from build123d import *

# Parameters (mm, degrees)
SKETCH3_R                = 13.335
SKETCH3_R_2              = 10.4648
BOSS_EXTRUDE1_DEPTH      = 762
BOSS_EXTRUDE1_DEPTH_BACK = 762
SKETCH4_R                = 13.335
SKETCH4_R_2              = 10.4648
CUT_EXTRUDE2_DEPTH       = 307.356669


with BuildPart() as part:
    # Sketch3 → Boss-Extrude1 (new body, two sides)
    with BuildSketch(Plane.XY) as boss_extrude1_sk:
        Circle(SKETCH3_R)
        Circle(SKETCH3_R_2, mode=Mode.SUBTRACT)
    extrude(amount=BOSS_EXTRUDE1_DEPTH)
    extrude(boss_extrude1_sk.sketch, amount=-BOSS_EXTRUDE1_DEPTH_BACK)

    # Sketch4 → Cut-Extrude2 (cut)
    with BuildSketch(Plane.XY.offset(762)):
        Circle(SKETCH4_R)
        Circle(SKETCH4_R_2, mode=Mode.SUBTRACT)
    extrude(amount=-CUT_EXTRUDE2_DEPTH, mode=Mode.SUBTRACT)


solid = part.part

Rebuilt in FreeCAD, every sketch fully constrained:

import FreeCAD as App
import Part
import Sketcher

V = App.Vector
Q = App.Units.Quantity

doc = App.newDocument("Part")
body = doc.addObject("PartDesign::Body", "Body")

# Sketch on XY plane
sketch1 = doc.addObject("Sketcher::SketchObject", "Sketch")
body.addObject(sketch1)
sketch1.AttachmentSupport = (doc.XY_Plane, [""])
sketch1.MapMode = "FlatFace"
sketch1.addGeometry(Part.Circle(V(0, 0, 0), V(0, 0, 1), 13), False)
sketch1.addGeometry(Part.Circle(V(0, 0, 0), V(0, 0, 1), 10), False)
sketch1.addConstraint(Sketcher.Constraint("Coincident", 0, 3, -1, 1))
sketch1.addConstraint(Sketcher.Constraint("Coincident", 1, 3, -1, 1))
sketch1.addConstraint(Sketcher.Constraint("Diameter", 0, Q("1.05 in")))
sketch1.addConstraint(Sketcher.Constraint("Diameter", 1, Q("0.824 in")))
pad1 = doc.addObject("PartDesign::Pad", "Pad")
body.addObject(pad1)
pad1.Profile = sketch1
pad1.Type = "TwoLengths"
pad1.Length = Q("30 in")
pad1.Length2 = Q("30 in")

# Sketch on XY plane
sketch2 = doc.addObject("Sketcher::SketchObject", "Sketch001")
body.addObject(sketch2)
sketch2.AttachmentSupport = (doc.XY_Plane, [""])
sketch2.MapMode = "FlatFace"
sketch2.AttachmentOffset = App.Placement(V(0, 0, 30 * 25.4), App.Rotation())
sketch2.addGeometry(Part.Circle(V(0, 0, 0), V(0, 0, 1), 13), False)
sketch2.addGeometry(Part.Circle(V(0, 0, 0), V(0, 0, 1), 10), False)
sketch2.addConstraint(Sketcher.Constraint("Coincident", 0, 3, -1, 1))
sketch2.addConstraint(Sketcher.Constraint("Coincident", 1, 3, -1, 1))
sketch2.addConstraint(Sketcher.Constraint("Diameter", 0, Q("1.05 in")))
sketch2.addConstraint(Sketcher.Constraint("Diameter", 1, Q("0.824 in")))
pocket1 = doc.addObject("PartDesign::Pocket", "Pocket")
body.addObject(pocket1)
pocket1.Profile = sketch2
pocket1.Length = 307.356669

doc.recompute()
